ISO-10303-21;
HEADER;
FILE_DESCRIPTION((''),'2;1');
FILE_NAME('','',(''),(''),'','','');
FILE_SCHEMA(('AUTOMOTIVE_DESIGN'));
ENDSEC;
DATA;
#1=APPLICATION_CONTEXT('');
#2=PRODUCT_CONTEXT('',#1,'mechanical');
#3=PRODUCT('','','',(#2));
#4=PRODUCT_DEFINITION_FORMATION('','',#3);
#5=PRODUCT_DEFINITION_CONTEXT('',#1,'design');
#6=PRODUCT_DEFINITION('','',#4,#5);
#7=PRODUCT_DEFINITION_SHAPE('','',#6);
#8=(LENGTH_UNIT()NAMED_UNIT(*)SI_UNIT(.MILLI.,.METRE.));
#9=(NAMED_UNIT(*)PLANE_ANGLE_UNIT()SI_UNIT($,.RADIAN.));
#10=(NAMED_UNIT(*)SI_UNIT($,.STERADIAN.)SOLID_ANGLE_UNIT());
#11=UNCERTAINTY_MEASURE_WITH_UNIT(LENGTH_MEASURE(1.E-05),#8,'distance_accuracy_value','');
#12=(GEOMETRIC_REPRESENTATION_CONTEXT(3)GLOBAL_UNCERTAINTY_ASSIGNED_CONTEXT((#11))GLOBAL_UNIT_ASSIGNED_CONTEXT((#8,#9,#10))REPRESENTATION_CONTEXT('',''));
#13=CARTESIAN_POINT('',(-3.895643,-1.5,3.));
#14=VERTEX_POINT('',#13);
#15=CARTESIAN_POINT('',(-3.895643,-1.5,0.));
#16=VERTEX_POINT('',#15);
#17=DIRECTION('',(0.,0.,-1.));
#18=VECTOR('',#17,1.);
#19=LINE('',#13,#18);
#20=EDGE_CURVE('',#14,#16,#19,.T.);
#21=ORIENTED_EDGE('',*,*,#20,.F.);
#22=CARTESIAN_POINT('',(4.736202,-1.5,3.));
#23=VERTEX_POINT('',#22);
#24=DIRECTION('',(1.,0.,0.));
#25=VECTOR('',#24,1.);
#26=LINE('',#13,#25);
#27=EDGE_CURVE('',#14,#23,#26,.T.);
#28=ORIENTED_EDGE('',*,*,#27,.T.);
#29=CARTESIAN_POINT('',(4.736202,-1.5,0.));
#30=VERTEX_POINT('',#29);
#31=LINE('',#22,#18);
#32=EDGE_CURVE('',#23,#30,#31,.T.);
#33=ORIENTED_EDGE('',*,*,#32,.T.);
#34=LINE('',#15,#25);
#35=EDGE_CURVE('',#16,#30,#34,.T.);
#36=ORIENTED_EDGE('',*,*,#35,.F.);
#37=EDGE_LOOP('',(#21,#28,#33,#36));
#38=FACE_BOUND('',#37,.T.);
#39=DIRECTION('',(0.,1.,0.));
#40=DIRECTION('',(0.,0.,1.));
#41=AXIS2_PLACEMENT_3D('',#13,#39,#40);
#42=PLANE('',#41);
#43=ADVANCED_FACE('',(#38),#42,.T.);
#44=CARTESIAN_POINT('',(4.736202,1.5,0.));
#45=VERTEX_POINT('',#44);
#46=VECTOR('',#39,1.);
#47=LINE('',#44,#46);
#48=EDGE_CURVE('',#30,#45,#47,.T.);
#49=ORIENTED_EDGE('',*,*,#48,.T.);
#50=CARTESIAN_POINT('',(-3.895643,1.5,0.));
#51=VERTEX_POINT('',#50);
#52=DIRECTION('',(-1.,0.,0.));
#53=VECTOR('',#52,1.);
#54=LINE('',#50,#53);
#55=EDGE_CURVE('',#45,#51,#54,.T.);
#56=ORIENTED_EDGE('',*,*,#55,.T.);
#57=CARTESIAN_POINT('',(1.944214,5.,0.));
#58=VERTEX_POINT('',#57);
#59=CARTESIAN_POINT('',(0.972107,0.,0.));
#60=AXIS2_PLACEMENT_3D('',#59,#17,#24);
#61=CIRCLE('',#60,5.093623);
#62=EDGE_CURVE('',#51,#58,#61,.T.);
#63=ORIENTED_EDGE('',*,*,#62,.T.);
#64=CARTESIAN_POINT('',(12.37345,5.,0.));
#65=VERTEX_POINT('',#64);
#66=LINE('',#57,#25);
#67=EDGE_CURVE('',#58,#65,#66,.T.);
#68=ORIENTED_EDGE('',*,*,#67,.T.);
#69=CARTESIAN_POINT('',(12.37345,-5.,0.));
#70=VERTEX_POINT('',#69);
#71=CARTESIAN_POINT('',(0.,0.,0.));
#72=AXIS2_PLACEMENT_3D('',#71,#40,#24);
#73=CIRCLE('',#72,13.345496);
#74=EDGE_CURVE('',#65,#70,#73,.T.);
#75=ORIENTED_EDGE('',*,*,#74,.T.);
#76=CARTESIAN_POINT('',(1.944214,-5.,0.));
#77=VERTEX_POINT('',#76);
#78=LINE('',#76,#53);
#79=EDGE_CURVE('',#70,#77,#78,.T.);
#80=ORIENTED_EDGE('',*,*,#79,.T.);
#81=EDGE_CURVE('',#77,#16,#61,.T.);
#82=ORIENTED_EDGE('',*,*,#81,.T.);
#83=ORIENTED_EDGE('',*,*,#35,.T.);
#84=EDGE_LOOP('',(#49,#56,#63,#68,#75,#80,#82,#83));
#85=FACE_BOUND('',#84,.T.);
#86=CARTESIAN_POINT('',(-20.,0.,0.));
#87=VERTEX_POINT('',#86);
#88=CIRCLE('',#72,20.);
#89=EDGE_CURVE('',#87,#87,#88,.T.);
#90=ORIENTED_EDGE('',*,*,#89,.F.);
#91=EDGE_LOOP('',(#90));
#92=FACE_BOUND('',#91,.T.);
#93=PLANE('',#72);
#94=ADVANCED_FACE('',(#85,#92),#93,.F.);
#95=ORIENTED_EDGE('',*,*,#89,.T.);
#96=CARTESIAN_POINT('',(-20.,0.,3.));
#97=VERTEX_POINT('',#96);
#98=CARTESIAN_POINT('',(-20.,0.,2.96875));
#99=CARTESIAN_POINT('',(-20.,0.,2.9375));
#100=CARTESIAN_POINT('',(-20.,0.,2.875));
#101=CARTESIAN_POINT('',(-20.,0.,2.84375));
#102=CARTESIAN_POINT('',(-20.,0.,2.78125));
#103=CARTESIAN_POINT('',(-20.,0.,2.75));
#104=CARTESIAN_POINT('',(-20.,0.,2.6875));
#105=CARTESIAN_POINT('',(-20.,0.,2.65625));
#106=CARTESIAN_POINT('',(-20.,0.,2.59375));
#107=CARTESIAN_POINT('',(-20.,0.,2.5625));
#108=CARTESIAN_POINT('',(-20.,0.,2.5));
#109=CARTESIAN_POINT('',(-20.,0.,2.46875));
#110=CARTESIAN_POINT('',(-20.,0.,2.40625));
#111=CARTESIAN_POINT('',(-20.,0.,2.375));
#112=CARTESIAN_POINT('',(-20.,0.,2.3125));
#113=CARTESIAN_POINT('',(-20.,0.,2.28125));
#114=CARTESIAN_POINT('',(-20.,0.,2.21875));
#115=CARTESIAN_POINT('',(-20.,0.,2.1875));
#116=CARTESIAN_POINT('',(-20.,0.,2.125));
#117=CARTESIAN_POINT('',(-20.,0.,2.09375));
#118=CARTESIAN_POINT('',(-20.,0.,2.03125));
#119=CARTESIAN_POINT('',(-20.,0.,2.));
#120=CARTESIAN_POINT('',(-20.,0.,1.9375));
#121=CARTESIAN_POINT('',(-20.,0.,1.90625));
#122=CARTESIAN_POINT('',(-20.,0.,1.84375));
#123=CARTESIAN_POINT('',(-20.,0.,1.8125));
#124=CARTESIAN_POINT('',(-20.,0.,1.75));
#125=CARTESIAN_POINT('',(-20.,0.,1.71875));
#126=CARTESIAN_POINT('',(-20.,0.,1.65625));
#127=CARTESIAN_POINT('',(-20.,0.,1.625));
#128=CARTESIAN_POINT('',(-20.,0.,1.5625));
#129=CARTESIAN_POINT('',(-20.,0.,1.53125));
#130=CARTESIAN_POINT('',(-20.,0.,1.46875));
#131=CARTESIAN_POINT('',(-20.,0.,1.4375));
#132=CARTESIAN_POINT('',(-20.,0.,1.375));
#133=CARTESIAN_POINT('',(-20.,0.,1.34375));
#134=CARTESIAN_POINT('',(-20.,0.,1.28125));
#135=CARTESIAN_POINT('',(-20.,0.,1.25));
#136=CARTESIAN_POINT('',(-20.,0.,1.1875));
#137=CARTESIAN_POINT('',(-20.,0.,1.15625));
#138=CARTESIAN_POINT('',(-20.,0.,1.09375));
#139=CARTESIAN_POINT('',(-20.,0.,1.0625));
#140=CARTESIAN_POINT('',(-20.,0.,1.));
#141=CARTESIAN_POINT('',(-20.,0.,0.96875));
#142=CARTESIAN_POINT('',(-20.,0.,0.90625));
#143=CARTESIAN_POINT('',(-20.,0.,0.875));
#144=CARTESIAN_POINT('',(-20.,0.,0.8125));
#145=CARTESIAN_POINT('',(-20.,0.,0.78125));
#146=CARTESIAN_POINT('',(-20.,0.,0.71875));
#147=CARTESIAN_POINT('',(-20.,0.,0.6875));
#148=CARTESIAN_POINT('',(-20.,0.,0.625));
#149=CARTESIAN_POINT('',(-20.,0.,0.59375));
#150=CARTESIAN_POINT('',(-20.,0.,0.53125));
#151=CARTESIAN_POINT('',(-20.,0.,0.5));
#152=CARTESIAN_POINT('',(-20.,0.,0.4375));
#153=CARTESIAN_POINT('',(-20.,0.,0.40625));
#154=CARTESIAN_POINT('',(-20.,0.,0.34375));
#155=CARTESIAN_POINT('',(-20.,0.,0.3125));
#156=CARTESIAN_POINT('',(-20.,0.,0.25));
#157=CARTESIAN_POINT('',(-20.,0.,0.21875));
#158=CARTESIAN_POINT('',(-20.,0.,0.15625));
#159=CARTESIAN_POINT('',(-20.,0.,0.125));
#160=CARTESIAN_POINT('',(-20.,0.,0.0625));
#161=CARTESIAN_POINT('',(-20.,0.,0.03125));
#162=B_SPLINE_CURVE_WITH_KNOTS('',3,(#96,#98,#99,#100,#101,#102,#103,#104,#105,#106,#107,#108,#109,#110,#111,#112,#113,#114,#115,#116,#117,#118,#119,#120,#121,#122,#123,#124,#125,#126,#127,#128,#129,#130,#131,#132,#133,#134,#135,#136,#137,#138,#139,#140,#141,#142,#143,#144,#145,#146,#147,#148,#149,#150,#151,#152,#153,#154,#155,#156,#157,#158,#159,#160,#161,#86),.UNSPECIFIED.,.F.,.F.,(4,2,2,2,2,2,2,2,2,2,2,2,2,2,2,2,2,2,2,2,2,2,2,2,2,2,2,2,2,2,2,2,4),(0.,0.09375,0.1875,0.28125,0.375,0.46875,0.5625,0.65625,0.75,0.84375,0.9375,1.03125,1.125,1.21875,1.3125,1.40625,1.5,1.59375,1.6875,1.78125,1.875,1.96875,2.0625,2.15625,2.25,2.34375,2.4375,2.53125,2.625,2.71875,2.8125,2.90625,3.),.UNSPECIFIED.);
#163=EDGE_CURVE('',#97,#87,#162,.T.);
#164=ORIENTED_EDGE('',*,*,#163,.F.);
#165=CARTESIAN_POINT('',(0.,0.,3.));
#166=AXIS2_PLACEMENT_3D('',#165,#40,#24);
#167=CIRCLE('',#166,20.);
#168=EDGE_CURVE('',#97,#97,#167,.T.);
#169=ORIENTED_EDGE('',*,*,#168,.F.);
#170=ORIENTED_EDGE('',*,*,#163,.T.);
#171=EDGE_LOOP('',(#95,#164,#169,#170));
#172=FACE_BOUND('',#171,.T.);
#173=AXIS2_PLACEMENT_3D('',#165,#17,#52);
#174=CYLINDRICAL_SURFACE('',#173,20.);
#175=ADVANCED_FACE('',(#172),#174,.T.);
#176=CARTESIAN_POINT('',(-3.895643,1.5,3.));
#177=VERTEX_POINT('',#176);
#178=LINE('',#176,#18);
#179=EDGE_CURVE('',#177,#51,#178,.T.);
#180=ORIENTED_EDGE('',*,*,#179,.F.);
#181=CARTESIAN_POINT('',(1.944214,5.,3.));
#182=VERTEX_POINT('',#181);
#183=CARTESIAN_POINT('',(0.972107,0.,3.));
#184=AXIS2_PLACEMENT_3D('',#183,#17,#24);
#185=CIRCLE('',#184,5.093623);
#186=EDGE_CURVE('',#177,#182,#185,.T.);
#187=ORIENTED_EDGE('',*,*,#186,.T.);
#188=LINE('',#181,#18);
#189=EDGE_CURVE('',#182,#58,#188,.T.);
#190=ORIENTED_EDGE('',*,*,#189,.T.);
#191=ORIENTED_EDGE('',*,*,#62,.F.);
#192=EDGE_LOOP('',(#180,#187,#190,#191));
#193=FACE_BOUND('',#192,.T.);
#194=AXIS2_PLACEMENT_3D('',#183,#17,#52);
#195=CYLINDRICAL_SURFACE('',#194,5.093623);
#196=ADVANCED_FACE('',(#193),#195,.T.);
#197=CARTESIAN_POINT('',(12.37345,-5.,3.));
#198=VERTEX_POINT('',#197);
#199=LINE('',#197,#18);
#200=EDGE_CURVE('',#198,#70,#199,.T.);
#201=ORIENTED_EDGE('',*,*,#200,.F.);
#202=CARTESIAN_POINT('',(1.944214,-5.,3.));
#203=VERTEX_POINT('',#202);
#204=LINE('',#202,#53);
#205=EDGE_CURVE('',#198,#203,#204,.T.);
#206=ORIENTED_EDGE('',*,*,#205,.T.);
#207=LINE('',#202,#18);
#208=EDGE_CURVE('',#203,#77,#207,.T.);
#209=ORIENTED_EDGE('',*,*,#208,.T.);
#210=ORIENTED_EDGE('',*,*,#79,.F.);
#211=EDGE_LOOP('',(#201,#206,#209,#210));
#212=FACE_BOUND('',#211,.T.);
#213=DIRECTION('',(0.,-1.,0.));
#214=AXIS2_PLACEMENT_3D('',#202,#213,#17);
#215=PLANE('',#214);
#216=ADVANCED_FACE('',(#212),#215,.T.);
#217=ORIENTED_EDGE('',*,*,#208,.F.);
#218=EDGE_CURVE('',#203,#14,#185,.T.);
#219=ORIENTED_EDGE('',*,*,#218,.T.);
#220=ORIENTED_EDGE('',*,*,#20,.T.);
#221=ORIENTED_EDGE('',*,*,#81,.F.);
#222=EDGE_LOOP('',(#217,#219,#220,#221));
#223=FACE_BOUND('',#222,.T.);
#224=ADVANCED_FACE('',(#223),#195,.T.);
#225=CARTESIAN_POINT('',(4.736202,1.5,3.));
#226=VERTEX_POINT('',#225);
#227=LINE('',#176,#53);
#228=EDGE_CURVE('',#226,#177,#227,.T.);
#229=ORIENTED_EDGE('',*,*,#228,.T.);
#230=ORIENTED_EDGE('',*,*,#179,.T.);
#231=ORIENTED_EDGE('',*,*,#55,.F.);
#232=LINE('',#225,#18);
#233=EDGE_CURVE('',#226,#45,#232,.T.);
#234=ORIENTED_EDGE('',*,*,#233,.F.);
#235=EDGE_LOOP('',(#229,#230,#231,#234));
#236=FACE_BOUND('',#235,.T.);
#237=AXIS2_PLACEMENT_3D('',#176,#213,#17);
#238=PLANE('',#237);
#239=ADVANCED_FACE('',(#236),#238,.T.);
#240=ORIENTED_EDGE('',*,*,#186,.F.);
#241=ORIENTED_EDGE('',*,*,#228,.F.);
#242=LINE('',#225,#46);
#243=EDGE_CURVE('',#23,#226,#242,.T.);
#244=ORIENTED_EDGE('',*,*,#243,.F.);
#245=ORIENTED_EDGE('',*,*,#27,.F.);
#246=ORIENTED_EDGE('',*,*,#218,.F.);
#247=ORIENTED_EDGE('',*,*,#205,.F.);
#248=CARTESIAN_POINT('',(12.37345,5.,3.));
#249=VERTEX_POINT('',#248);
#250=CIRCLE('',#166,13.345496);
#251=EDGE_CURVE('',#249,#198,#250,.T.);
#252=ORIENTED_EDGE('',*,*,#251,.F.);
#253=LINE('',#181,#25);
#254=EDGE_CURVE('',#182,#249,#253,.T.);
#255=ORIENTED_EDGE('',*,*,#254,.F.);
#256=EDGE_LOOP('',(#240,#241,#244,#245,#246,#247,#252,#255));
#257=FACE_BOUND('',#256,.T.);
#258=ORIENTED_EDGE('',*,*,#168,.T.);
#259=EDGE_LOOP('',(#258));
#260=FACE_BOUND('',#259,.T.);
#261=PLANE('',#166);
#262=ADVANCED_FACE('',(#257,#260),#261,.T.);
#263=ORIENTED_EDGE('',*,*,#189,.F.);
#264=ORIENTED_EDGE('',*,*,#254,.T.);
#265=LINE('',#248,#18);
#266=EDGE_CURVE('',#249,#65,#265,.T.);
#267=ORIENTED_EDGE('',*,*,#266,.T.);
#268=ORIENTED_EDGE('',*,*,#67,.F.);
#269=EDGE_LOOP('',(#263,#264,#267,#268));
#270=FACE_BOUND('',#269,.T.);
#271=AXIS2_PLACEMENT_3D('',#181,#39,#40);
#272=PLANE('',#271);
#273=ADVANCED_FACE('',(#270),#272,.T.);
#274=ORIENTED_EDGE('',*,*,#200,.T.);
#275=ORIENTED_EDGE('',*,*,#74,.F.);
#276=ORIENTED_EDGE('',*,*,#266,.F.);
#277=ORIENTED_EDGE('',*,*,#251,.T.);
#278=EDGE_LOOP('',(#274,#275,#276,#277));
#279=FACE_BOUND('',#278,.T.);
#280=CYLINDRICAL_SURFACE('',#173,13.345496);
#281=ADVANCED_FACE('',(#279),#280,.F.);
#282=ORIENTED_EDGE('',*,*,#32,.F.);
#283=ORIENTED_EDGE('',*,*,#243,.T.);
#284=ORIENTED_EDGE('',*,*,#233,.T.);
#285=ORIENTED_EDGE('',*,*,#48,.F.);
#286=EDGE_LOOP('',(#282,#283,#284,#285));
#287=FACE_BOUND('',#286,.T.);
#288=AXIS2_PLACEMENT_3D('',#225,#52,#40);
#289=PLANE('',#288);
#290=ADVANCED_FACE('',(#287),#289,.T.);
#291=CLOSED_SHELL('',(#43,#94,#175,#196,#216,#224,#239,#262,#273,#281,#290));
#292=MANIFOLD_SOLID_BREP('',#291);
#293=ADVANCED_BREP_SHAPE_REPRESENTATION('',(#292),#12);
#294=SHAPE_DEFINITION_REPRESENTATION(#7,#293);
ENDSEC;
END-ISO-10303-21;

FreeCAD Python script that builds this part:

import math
import FreeCAD as App
import Part
import Sketcher

doc = App.newDocument("Part")
body = doc.addObject("PartDesign::Body", "Body")

sketch1 = body.newObject("Sketcher::SketchObject", "Sketch")
sketch1.AttachmentSupport = (doc.getObject("XY_Plane"), [""])
sketch1.MapMode = "FlatFace"
sketch1.addGeometry([
    Part.Circle(App.Vector(0, 0, 0), App.Vector(0, 0, 1), 20),
    Part.LineSegment(App.Vector(12.37345, 5, 0), App.Vector(1.944214, 5, 0)),
    Part.ArcOfCircle(Part.Circle(App.Vector(0.972107, 0, 0), App.Vector(0, 0, 1), 5.093623), math.radians(78.99773), math.radians(162.873289)),
    Part.LineSegment(App.Vector(-3.895643, 1.5, 0), App.Vector(4.736202, 1.5, 0)),
    Part.LineSegment(App.Vector(4.736202, 1.5, 0), App.Vector(4.736202, -1.5, 0)),
    Part.LineSegment(App.Vector(4.736202, -1.5, 0), App.Vector(-3.895643, -1.5, 0)),
    Part.ArcOfCircle(Part.Circle(App.Vector(0.972107, 0, 0), App.Vector(0, 0, 1), 5.093623), math.radians(-162.873289), math.radians(-78.99773)),
    Part.LineSegment(App.Vector(1.944214, -5, 0), App.Vector(12.37345, -5, 0)),
    Part.ArcOfCircle(Part.Circle(App.Vector(0, 0, 0), App.Vector(0, 0, 1), 13.345496), math.radians(22.003192), math.radians(337.996808)),
], False)
sketch1.addConstraint([
    Sketcher.Constraint("Coincident", 1, 2, 2, 1),
    Sketcher.Constraint("Coincident", 2, 2, 3, 1),
    Sketcher.Constraint("Coincident", 3, 2, 4, 1),
    Sketcher.Constraint("Coincident", 4, 2, 5, 1),
    Sketcher.Constraint("Coincident", 5, 2, 6, 1),
    Sketcher.Constraint("Coincident", 6, 2, 7, 1),
    Sketcher.Constraint("Coincident", 7, 2, 8, 2),
    Sketcher.Constraint("Coincident", 8, 1, 1, 1),
    Sketcher.Constraint("Horizontal", 1),
    Sketcher.Constraint("Horizontal", 3),
    Sketcher.Constraint("Vertical", 4),
    Sketcher.Constraint("Horizontal", 5),
    Sketcher.Constraint("Horizontal", 7),
    Sketcher.Constraint("Coincident", 0, 3, -1, 1),
    Sketcher.Constraint("Coincident", 8, 3, -1, 1),
    Sketcher.Constraint("Coincident", 6, 3, 2, 3),
    Sketcher.Constraint("Equal", 2, 6),
    Sketcher.Constraint("Symmetric", 2, 2, 5, 2, -1),
    Sketcher.Constraint("Vertical", 1, 2, 6, 2),
    Sketcher.Constraint("Diameter", 0, 40.0),
    Sketcher.Constraint("DistanceY", 4, 2, 4, 1, 3.0),
    Sketcher.Constraint("DistanceY", -1, 1, 1, 2, 5.0),
    Sketcher.Constraint("Radius", 2, 5.093623),
    Sketcher.Constraint("Radius", 8, 13.345496),
    Sketcher.Constraint("DistanceX", -1, 1, 3, 2, 4.736202),
    Sketcher.Constraint("DistanceX", 1, 2, 1, 1, 10.429235),
])
pad1 = body.newObject("PartDesign::Pad", "Pad")
pad1.Profile = sketch1
pad1.Length = 3

doc.recompute()
